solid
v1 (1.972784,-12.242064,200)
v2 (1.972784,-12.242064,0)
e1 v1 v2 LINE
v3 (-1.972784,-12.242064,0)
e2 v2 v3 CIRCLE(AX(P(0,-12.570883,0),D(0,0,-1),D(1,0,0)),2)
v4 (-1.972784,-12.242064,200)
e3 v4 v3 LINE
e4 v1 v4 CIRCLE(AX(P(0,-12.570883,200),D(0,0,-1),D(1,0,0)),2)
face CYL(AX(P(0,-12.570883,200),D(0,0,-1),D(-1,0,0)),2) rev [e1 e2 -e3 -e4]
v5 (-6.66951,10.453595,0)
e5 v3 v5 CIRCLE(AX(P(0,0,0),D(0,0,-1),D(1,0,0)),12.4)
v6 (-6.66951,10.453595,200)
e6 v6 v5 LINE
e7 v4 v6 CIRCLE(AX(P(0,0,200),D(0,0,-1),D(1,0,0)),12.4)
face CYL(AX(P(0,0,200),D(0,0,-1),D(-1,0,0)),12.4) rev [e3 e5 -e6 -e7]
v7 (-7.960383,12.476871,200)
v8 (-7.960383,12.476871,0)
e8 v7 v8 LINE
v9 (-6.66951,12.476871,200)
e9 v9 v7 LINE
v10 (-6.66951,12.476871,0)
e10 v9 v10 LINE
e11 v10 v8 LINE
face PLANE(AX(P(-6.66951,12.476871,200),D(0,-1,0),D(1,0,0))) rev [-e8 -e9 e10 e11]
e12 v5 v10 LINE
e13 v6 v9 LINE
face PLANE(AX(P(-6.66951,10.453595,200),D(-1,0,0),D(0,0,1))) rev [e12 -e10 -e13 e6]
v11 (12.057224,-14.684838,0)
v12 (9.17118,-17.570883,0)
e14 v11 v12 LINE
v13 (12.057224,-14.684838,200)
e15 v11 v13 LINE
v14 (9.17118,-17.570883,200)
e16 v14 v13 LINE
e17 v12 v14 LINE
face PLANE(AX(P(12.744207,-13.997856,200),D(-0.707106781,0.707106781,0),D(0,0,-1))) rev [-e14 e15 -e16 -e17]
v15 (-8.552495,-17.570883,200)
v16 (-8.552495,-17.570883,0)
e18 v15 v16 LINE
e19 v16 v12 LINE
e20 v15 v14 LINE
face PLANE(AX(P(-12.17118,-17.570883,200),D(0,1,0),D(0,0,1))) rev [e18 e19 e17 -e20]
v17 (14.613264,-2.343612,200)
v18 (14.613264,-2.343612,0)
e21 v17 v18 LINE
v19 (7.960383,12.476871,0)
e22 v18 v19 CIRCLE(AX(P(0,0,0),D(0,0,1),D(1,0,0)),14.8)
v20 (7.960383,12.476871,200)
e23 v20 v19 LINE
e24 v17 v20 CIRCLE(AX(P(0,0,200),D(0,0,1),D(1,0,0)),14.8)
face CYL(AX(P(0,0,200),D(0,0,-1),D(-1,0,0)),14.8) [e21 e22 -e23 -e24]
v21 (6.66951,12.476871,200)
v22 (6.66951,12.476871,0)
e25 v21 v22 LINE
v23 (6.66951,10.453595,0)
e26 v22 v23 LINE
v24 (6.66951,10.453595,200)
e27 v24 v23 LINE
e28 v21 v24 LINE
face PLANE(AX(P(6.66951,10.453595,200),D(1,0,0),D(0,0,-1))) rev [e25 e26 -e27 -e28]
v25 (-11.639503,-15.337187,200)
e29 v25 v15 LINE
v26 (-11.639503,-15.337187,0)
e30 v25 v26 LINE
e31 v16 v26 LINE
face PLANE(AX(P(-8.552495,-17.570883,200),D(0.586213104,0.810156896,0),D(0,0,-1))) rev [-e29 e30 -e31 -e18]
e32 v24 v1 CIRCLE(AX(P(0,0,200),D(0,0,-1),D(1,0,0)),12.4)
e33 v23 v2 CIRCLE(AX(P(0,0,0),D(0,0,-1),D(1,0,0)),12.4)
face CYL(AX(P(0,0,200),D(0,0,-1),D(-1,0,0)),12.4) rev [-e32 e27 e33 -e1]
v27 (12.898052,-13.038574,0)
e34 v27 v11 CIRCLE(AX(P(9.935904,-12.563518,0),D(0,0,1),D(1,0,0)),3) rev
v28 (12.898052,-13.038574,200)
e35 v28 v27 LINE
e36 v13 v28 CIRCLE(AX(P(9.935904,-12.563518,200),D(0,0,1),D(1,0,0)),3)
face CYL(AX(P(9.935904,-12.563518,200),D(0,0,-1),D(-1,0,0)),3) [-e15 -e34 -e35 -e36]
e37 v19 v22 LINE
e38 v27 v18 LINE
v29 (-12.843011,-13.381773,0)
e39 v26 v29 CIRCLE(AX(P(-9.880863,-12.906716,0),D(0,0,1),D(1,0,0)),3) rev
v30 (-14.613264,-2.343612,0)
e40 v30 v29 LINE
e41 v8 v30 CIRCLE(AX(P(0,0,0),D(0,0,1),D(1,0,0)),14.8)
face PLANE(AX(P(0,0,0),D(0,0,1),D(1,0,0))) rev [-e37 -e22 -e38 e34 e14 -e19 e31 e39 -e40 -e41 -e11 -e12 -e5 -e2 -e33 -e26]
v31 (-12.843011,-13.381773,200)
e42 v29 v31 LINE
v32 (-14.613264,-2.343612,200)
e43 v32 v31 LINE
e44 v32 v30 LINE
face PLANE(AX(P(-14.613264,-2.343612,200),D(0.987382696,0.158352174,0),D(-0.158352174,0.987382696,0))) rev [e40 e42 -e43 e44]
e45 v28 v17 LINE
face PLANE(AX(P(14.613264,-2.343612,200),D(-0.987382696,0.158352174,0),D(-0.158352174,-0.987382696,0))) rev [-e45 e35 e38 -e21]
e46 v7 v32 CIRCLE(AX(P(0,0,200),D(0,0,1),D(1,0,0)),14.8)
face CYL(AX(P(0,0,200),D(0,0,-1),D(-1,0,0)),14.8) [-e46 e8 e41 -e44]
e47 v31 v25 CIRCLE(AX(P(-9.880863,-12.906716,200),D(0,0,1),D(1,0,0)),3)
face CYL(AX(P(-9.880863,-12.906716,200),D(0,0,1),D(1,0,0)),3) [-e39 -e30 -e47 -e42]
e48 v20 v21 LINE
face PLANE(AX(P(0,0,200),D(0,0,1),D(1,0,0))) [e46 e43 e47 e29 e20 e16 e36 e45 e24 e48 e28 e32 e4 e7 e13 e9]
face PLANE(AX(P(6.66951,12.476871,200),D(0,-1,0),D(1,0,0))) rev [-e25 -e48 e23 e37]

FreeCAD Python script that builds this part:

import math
import FreeCAD as App
import Part
import Sketcher
Q = App.Units.Quantity


def edges_at(feature, points):
    """Names of the edges that pass closest to the given points."""
    edges = feature.Shape.Edges
    near = lambda p: min(range(len(edges)), key=lambda i: edges[i].distToShape(Part.Vertex(*p))[0])
    return sorted({f"Edge{near(p) + 1}" for p in points})

doc = App.newDocument("Part")
body = doc.addObject("PartDesign::Body", "Body")

# Sketch on XY plane
sketch1 = body.newObject("Sketcher::SketchObject", "Sketch")
sketch1.AttachmentSupport = (doc.getObject("XY_Plane"), [""])
sketch1.MapMode = "FlatFace"
sketch1.addGeometry(Part.LineSegment(App.Vector(-12.2, -17.6, 0), App.Vector(12.2, -17.6, 0)), False)
sketch1.addGeometry(Part.LineSegment(App.Vector(12.2, -17.6, 0), App.Vector(14.6, -2.3, 0)), False)
sketch1.addGeometry(Part.ArcOfCircle(Part.Circle(App.Vector(0, 0, 0), App.Vector(0, 0, 1), 14.8), math.radians(-9), math.radians(57)), False)
sketch1.addGeometry(Part.LineSegment(App.Vector(8, 12.5, 0), App.Vector(6.7, 12.5, 0)), False)
sketch1.addGeometry(Part.LineSegment(App.Vector(6.7, 12.5, 0), App.Vector(6.7, 10.5, 0)), False)
sketch1.addGeometry(Part.ArcOfCircle(Part.Circle(App.Vector(0, 0, 0), App.Vector(0, 0, 1), 12.4), math.radians(-81), math.radians(57)), False)
sketch1.addGeometry(Part.ArcOfCircle(Part.Circle(App.Vector(0, -12.6, 0), App.Vector(0, 0, 1), 2), math.radians(171), math.radians(369)), False)
sketch1.addGeometry(Part.ArcOfCircle(Part.Circle(App.Vector(0, 0, 0), App.Vector(0, 0, 1), 12.4), math.radians(123), math.radians(261)), False)
sketch1.addGeometry(Part.LineSegment(App.Vector(-6.7, 10.5, 0), App.Vector(-6.7, 12.5, 0)), False)
sketch1.addGeometry(Part.LineSegment(App.Vector(-6.7, 12.5, 0), App.Vector(-8, 12.5, 0)), False)
sketch1.addGeometry(Part.ArcOfCircle(Part.Circle(App.Vector(0, 0, 0), App.Vector(0, 0, 1), 14.8), math.radians(123), math.radians(189)), False)
sketch1.addGeometry(Part.LineSegment(App.Vector(-14.6, -2.3, 0), App.Vector(-12.2, -17.6, 0)), False)
sketch1.addConstraint(Sketcher.Constraint("Coincident", 0, 2, 1, 1))
sketch1.addConstraint(Sketcher.Constraint("Tangent", 1, 2, 2, 1))
sketch1.addConstraint(Sketcher.Constraint("Coincident", 2, 2, 3, 1))
sketch1.addConstraint(Sketcher.Constraint("Coincident", 3, 2, 4, 1))
sketch1.addConstraint(Sketcher.Constraint("Coincident", 4, 2, 5, 2))
sketch1.addConstraint(Sketcher.Constraint("Coincident", 5, 1, 6, 2))
sketch1.addConstraint(Sketcher.Constraint("Coincident", 6, 1, 7, 2))
sketch1.addConstraint(Sketcher.Constraint("Coincident", 7, 1, 8, 1))
sketch1.addConstraint(Sketcher.Constraint("Coincident", 8, 2, 9, 1))
sketch1.addConstraint(Sketcher.Constraint("Coincident", 9, 2, 10, 1))
sketch1.addConstraint(Sketcher.Constraint("Tangent", 10, 2, 11, 1))
sketch1.addConstraint(Sketcher.Constraint("Coincident", 11, 2, 0, 1))
sketch1.addConstraint(Sketcher.Constraint("Horizontal", 0))
sketch1.addConstraint(Sketcher.Constraint("Horizontal", 3))
sketch1.addConstraint(Sketcher.Constraint("Vertical", 4))
sketch1.addConstraint(Sketcher.Constraint("Vertical", 8))
sketch1.addConstraint(Sketcher.Constraint("Horizontal", 9))
sketch1.addConstraint(Sketcher.Constraint("Coincident", 2, 3, -1, 1))
sketch1.addConstraint(Sketcher.Constraint("Coincident", 5, 3, -1, 1))
sketch1.addConstraint(Sketcher.Constraint("Coincident", 7, 3, -1, 1))
sketch1.addConstraint(Sketcher.Constraint("Coincident", 10, 3, -1, 1))
sketch1.addConstraint(Sketcher.Constraint("Equal", 5, 7))
sketch1.addConstraint(Sketcher.Constraint("Equal", 2, 10))
sketch1.addConstraint(Sketcher.Constraint("Symmetric", 3, 2, 8, 2, -2))
sketch1.addConstraint(Sketcher.Constraint("PointOnObject", 6, 3, -2))
sketch1.addConstraint(Sketcher.Constraint("Horizontal", 1, 2, 10, 2))
sketch1.addConstraint(Sketcher.Constraint("Radius", 6, Q("2 mm")))
sketch1.addConstraint(Sketcher.Constraint("Radius", 2, Q("14.8 mm")))
sketch1.addConstraint(Sketcher.Constraint("Radius", 5, Q("12.4 mm")))
sketch1.addConstraint(Sketcher.Constraint("DistanceY", 0, 2, 6, 3, Q("5 mm")))
sketch1.addConstraint(Sketcher.Constraint("DistanceX", 0, 1, 0, 2, Q("24.34236 mm")))
sketch1.addConstraint(Sketcher.Constraint("DistanceX", 3, 2, 3, 1, Q("1.290873 mm")))
sketch1.addConstraint(Sketcher.Constraint("DistanceY", -1, 1, 2, 2, Q("12.476871 mm")))
sketch1.addConstraint(Sketcher.Constraint("DistanceY", 0, 2, 1, 2, Q("15.22727 mm")))
pad1 = body.newObject("PartDesign::Pad", "Pad")
pad1.Profile = sketch1
pad1.Length = 200
doc.recompute()

chamfer = body.newObject("PartDesign::Chamfer", "Chamfer")
chamfer.Base = (pad1, edges_at(pad1, [(12.171, -17.571, 100)]))
chamfer.ChamferType = "Two distances"
chamfer.Size = 3
chamfer.Size2 = 3.618685
doc.recompute()

chamfer2 = body.newObject("PartDesign::Chamfer", "Chamfer001")
chamfer2.Base = (chamfer, edges_at(chamfer, [(-12.171, -17.571, 100)]))
chamfer2.ChamferType = "Two distances"
chamfer2.Size = 3.618685
chamfer2.Size2 = 3
doc.recompute()

fillet = body.newObject("PartDesign::Fillet", "Fillet")
fillet.Base = (chamfer2, edges_at(chamfer2, [(12.744, -13.998, 100), (-12.646, -14.609, 100)]))
fillet.Radius = 3

doc.recompute()
